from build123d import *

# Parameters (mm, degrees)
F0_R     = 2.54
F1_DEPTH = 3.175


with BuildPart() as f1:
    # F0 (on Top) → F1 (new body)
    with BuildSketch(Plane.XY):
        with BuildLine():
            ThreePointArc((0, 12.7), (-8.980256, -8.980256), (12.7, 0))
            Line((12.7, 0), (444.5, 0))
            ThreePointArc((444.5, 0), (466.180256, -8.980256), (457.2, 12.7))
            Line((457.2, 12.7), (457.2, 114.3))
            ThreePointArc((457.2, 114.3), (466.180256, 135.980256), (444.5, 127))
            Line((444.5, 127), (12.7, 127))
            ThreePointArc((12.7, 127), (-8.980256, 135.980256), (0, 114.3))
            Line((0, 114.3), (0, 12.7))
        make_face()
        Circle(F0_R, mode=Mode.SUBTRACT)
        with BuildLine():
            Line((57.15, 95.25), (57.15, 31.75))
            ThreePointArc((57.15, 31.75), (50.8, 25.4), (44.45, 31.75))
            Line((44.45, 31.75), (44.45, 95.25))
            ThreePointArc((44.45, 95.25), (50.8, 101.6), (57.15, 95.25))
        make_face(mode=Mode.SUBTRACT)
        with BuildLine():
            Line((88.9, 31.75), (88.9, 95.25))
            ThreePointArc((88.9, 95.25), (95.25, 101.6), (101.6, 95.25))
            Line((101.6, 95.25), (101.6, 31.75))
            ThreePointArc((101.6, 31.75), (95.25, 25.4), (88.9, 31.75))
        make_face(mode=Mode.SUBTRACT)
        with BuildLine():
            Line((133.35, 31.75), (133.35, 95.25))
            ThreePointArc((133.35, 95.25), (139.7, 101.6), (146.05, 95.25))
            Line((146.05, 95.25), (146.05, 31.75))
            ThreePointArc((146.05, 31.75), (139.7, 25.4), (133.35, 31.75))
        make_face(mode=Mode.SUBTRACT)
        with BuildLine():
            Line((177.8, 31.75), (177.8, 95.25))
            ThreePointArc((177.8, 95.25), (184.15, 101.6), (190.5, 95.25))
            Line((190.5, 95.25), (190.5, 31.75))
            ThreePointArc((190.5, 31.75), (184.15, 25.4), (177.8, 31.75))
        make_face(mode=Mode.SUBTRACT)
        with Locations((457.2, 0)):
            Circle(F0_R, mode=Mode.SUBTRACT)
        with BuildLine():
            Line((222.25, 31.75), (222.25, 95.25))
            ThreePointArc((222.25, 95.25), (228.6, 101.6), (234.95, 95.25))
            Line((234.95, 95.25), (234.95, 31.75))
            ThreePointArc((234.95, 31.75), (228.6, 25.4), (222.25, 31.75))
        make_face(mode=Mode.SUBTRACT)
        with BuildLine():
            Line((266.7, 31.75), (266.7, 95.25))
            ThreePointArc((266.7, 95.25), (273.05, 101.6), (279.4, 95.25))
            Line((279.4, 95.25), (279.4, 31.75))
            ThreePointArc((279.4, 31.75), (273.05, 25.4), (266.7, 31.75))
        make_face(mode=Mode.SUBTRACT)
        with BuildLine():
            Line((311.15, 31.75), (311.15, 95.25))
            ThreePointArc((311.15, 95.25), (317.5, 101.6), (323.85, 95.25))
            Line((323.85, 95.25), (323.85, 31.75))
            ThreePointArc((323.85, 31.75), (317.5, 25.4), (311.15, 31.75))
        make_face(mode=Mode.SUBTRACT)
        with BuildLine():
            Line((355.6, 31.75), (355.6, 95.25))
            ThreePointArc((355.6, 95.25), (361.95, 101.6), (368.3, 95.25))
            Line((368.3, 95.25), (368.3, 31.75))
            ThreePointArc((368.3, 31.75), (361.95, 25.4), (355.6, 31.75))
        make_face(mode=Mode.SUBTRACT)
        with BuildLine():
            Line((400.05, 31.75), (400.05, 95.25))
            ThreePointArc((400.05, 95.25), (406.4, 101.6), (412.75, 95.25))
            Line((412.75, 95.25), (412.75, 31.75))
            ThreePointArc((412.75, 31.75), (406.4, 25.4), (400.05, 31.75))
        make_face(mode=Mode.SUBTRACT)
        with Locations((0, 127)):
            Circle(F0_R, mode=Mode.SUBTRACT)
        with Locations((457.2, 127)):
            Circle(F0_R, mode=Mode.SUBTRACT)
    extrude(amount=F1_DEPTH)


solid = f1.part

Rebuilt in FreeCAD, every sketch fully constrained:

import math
import FreeCAD as App
import Part
import Sketcher

V = App.Vector
Q = App.Units.Quantity

doc = App.newDocument("Part")
body = doc.addObject("PartDesign::Body", "Body")

# Sketch on XY plane
sketch1 = body.newObject("Sketcher::SketchObject", "Sketch")
sketch1.AttachmentSupport = (doc.getObject("XY_Plane"), [""])
sketch1.MapMode = "FlatFace"
sketch1.addGeometry(Part.ArcOfCircle(Part.Circle(V(0, 0, 0), V(0, 0, 1), 12.7), math.radians(90), math.radians(360)), False)
sketch1.addGeometry(Part.LineSegment(V(12.7, 0, 0), V(444.5, 0, 0)), False)
sketch1.addGeometry(Part.ArcOfCircle(Part.Circle(V(457.2, 0, 0), V(0, 0, 1), 12.7), math.radians(-180), math.radians(90)), False)
sketch1.addGeometry(Part.LineSegment(V(457.2, 12.7, 0), V(457.2, 114.3, 0)), False)
sketch1.addGeometry(Part.ArcOfCircle(Part.Circle(V(457.2, 127, 0), V(0, 0, 1), 12.7), math.radians(-90), math.radians(180)), False)
sketch1.addGeometry(Part.LineSegment(V(444.5, 127, 0), V(12.7, 127, 0)), False)
sketch1.addGeometry(Part.ArcOfCircle(Part.Circle(V(0, 127, 0), V(0, 0, 1), 12.7), math.radians(0), math.radians(270)), False)
sketch1.addGeometry(Part.LineSegment(V(0, 114.3, 0), V(0, 12.7, 0)), False)
sketch1.addGeometry(Part.Circle(V(0, 0, 0), V(0, 0, 1), 2.54), False)
sketch1.addGeometry(Part.Circle(V(457.2, 0, 0), V(0, 0, 1), 2.54), False)
sketch1.addGeometry(Part.ArcOfCircle(Part.Circle(V(50.8, 95.25, 0), V(0, 0, 1), 6.35), math.radians(0), math.radians(180)), False)
sketch1.addGeometry(Part.LineSegment(V(57.15, 95.25, 0), V(57.15, 31.75, 0)), False)
sketch1.addGeometry(Part.ArcOfCircle(Part.Circle(V(50.8, 31.75, 0), V(0, 0, 1), 6.35), math.radians(180), math.radians(360)), False)
sketch1.addGeometry(Part.LineSegment(V(44.45, 31.75, 0), V(44.45, 95.25, 0)), False)
sketch1.addGeometry(Part.ArcOfCircle(Part.Circle(V(95.25, 31.75, 0), V(0, 0, 1), 6.35), math.radians(180), math.radians(360)), False)
sketch1.addGeometry(Part.LineSegment(V(88.9, 31.75, 0), V(88.9, 95.25, 0)), False)
sketch1.addGeometry(Part.ArcOfCircle(Part.Circle(V(95.25, 95.25, 0), V(0, 0, 1), 6.35), math.radians(0), math.radians(180)), False)
sketch1.addGeometry(Part.LineSegment(V(101.6, 95.25, 0), V(101.6, 31.75, 0)), False)
sketch1.addGeometry(Part.ArcOfCircle(Part.Circle(V(139.7, 31.75, 0), V(0, 0, 1), 6.35), math.radians(180), math.radians(360)), False)
sketch1.addGeometry(Part.LineSegment(V(133.35, 31.75, 0), V(133.35, 95.25, 0)), False)
sketch1.addGeometry(Part.ArcOfCircle(Part.Circle(V(139.7, 95.25, 0), V(0, 0, 1), 6.35), math.radians(0), math.radians(180)), False)
sketch1.addGeometry(Part.LineSegment(V(146.05, 95.25, 0), V(146.05, 31.75, 0)), False)
sketch1.addGeometry(Part.ArcOfCircle(Part.Circle(V(184.15, 31.75, 0), V(0, 0, 1), 6.35), math.radians(180), math.radians(360)), False)
sketch1.addGeometry(Part.LineSegment(V(177.8, 31.75, 0), V(177.8, 95.25, 0)), False)
sketch1.addGeometry(Part.ArcOfCircle(Part.Circle(V(184.15, 95.25, 0), V(0, 0, 1), 6.35), math.radians(0), math.radians(180)), False)
sketch1.addGeometry(Part.LineSegment(V(190.5, 95.25, 0), V(190.5, 31.75, 0)), False)
sketch1.addGeometry(Part.Circle(V(0, 127, 0), V(0, 0, 1), 2.54), False)
sketch1.addGeometry(Part.ArcOfCircle(Part.Circle(V(228.6, 31.75, 0), V(0, 0, 1), 6.35), math.radians(180), math.radians(360)), False)
sketch1.addGeometry(Part.LineSegment(V(222.25, 31.75, 0), V(222.25, 95.25, 0)), False)
sketch1.addGeometry(Part.ArcOfCircle(Part.Circle(V(228.6, 95.25, 0), V(0, 0, 1), 6.35), math.radians(0), math.radians(180)), False)
sketch1.addGeometry(Part.LineSegment(V(234.95, 95.25, 0), V(234.95, 31.75, 0)), False)
sketch1.addGeometry(Part.ArcOfCircle(Part.Circle(V(273.05, 31.75, 0), V(0, 0, 1), 6.35), math.radians(180), math.radians(360)), False)
sketch1.addGeometry(Part.LineSegment(V(266.7, 31.75, 0), V(266.7, 95.25, 0)), False)
sketch1.addGeometry(Part.ArcOfCircle(Part.Circle(V(273.05, 95.25, 0), V(0, 0, 1), 6.35), math.radians(0), math.radians(180)), False)
sketch1.addGeometry(Part.LineSegment(V(279.4, 95.25, 0), V(279.4, 31.75, 0)), False)
sketch1.addGeometry(Part.ArcOfCircle(Part.Circle(V(317.5, 31.75, 0), V(0, 0, 1), 6.35), math.radians(180), math.radians(360)), False)
sketch1.addGeometry(Part.LineSegment(V(311.15, 31.75, 0), V(311.15, 95.25, 0)), False)
sketch1.addGeometry(Part.ArcOfCircle(Part.Circle(V(317.5, 95.25, 0), V(0, 0, 1), 6.35), math.radians(0), math.radians(180)), False)
sketch1.addGeometry(Part.LineSegment(V(323.85, 95.25, 0), V(323.85, 31.75, 0)), False)
sketch1.addGeometry(Part.ArcOfCircle(Part.Circle(V(361.95, 31.75, 0), V(0, 0, 1), 6.35), math.radians(180), math.radians(360)), False)
sketch1.addGeometry(Part.LineSegment(V(355.6, 31.75, 0), V(355.6, 95.25, 0)), False)
sketch1.addGeometry(Part.ArcOfCircle(Part.Circle(V(361.95, 95.25, 0), V(0, 0, 1), 6.35), math.radians(0), math.radians(180)), False)
sketch1.addGeometry(Part.LineSegment(V(368.3, 95.25, 0), V(368.3, 31.75, 0)), False)
sketch1.addGeometry(Part.ArcOfCircle(Part.Circle(V(406.4, 31.75, 0), V(0, 0, 1), 6.35), math.radians(180), math.radians(360)), False)
sketch1.addGeometry(Part.LineSegment(V(400.05, 31.75, 0), V(400.05, 95.25, 0)), False)
sketch1.addGeometry(Part.ArcOfCircle(Part.Circle(V(406.4, 95.25, 0), V(0, 0, 1), 6.35), math.radians(0), math.radians(180)), False)
sketch1.addGeometry(Part.LineSegment(V(412.75, 95.25, 0), V(412.75, 31.75, 0)), False)
sketch1.addGeometry(Part.Circle(V(457.2, 127, 0), V(0, 0, 1), 2.54), False)
sketch1.addConstraint(Sketcher.Constraint("Coincident", 0, 2, 1, 1))
sketch1.addConstraint(Sketcher.Constraint("Coincident", 1, 2, 2, 1))
sketch1.addConstraint(Sketcher.Constraint("Coincident", 2, 2, 3, 1))
sketch1.addConstraint(Sketcher.Constraint("Coincident", 3, 2, 4, 1))
sketch1.addConstraint(Sketcher.Constraint("Coincident", 4, 2, 5, 1))
sketch1.addConstraint(Sketcher.Constraint("Coincident", 5, 2, 6, 1))
sketch1.addConstraint(Sketcher.Constraint("Coincident", 6, 2, 7, 1))
sketch1.addConstraint(Sketcher.Constraint("Coincident", 7, 2, 0, 1))
sketch1.addConstraint(Sketcher.Constraint("Tangent", 10, 1, 11, 1))
sketch1.addConstraint(Sketcher.Constraint("Tangent", 11, 2, 12, 2))
sketch1.addConstraint(Sketcher.Constraint("Tangent", 12, 1, 13, 1))
sketch1.addConstraint(Sketcher.Constraint("Tangent", 13, 2, 10, 2))
sketch1.addConstraint(Sketcher.Constraint("Tangent", 14, 1, 15, 1))
sketch1.addConstraint(Sketcher.Constraint("Tangent", 15, 2, 16, 2))
sketch1.addConstraint(Sketcher.Constraint("Tangent", 16, 1, 17, 1))
sketch1.addConstraint(Sketcher.Constraint("Tangent", 17, 2, 14, 2))
sketch1.addConstraint(Sketcher.Constraint("Tangent", 18, 1, 19, 1))
sketch1.addConstraint(Sketcher.Constraint("Tangent", 19, 2, 20, 2))
sketch1.addConstraint(Sketcher.Constraint("Tangent", 20, 1, 21, 1))
sketch1.addConstraint(Sketcher.Constraint("Tangent", 21, 2, 18, 2))
sketch1.addConstraint(Sketcher.Constraint("Tangent", 22, 1, 23, 1))
sketch1.addConstraint(Sketcher.Constraint("Tangent", 23, 2, 24, 2))
sketch1.addConstraint(Sketcher.Constraint("Tangent", 24, 1, 25, 1))
sketch1.addConstraint(Sketcher.Constraint("Tangent", 25, 2, 22, 2))
sketch1.addConstraint(Sketcher.Constraint("Tangent", 27, 1, 28, 1))
sketch1.addConstraint(Sketcher.Constraint("Tangent", 28, 2, 29, 2))
sketch1.addConstraint(Sketcher.Constraint("Tangent", 29, 1, 30, 1))
sketch1.addConstraint(Sketcher.Constraint("Tangent", 30, 2, 27, 2))
sketch1.addConstraint(Sketcher.Constraint("Tangent", 31, 1, 32, 1))
sketch1.addConstraint(Sketcher.Constraint("Tangent", 32, 2, 33, 2))
sketch1.addConstraint(Sketcher.Constraint("Tangent", 33, 1, 34, 1))
sketch1.addConstraint(Sketcher.Constraint("Tangent", 34, 2, 31, 2))
sketch1.addConstraint(Sketcher.Constraint("Tangent", 35, 1, 36, 1))
sketch1.addConstraint(Sketcher.Constraint("Tangent", 36, 2, 37, 2))
sketch1.addConstraint(Sketcher.Constraint("Tangent", 37, 1, 38, 1))
sketch1.addConstraint(Sketcher.Constraint("Tangent", 38, 2, 35, 2))
sketch1.addConstraint(Sketcher.Constraint("Tangent", 39, 1, 40, 1))
sketch1.addConstraint(Sketcher.Constraint("Tangent", 40, 2, 41, 2))
sketch1.addConstraint(Sketcher.Constraint("Tangent", 41, 1, 42, 1))
sketch1.addConstraint(Sketcher.Constraint("Tangent", 42, 2, 39, 2))
sketch1.addConstraint(Sketcher.Constraint("Tangent", 43, 1, 44, 1))
sketch1.addConstraint(Sketcher.Constraint("Tangent", 44, 2, 45, 2))
sketch1.addConstraint(Sketcher.Constraint("Tangent", 45, 1, 46, 1))
sketch1.addConstraint(Sketcher.Constraint("Tangent", 46, 2, 43, 2))
sketch1.addConstraint(Sketcher.Constraint("Horizontal", 1))
sketch1.addConstraint(Sketcher.Constraint("Vertical", 3))
sketch1.addConstraint(Sketcher.Constraint("Horizontal", 5))
sketch1.addConstraint(Sketcher.Constraint("Vertical", 7))
sketch1.addConstraint(Sketcher.Constraint("Vertical", 11))
sketch1.addConstraint(Sketcher.Constraint("Vertical", 13))
sketch1.addConstraint(Sketcher.Constraint("Vertical", 15))
sketch1.addConstraint(Sketcher.Constraint("Vertical", 17))
sketch1.addConstraint(Sketcher.Constraint("Vertical", 19))
sketch1.addConstraint(Sketcher.Constraint("Vertical", 21))
sketch1.addConstraint(Sketcher.Constraint("Vertical", 23))
sketch1.addConstraint(Sketcher.Constraint("Vertical", 25))
sketch1.addConstraint(Sketcher.Constraint("Vertical", 28))
sketch1.addConstraint(Sketcher.Constraint("Vertical", 30))
sketch1.addConstraint(Sketcher.Constraint("Vertical", 32))
sketch1.addConstraint(Sketcher.Constraint("Vertical", 34))
sketch1.addConstraint(Sketcher.Constraint("Vertical", 36))
sketch1.addConstraint(Sketcher.Constraint("Vertical", 38))
sketch1.addConstraint(Sketcher.Constraint("Vertical", 40))
sketch1.addConstraint(Sketcher.Constraint("Vertical", 42))
sketch1.addConstraint(Sketcher.Constraint("Vertical", 44))
sketch1.addConstraint(Sketcher.Constraint("Vertical", 46))
sketch1.addConstraint(Sketcher.Constraint("Coincident", 0, 3, -1, 1))
sketch1.addConstraint(Sketcher.Constraint("Coincident", 8, 3, -1, 1))
sketch1.addConstraint(Sketcher.Constraint("Coincident", 9, 3, 2, 3))
sketch1.addConstraint(Sketcher.Constraint("Coincident", 26, 3, 6, 3))
sketch1.addConstraint(Sketcher.Constraint("Coincident", 47, 3, 4, 3))
sketch1.addConstraint(Sketcher.Constraint("Equal", 0, 2))
sketch1.addConstraint(Sketcher.Constraint("Equal", 2, 4))
sketch1.addConstraint(Sketcher.Constraint("Equal", 4, 6))
sketch1.addConstraint(Sketcher.Constraint("Equal", 8, 9))
sketch1.addConstraint(Sketcher.Constraint("Equal", 12, 14))
sketch1.addConstraint(Sketcher.Constraint("Equal", 16, 18))
sketch1.addConstraint(Sketcher.Constraint("Equal", 20, 22))
sketch1.addConstraint(Sketcher.Constraint("Equal", 9, 26))
sketch1.addConstraint(Sketcher.Constraint("Equal", 24, 27))
sketch1.addConstraint(Sketcher.Constraint("Equal", 29, 31))
sketch1.addConstraint(Sketcher.Constraint("Equal", 33, 35))
sketch1.addConstraint(Sketcher.Constraint("Equal", 37, 39))
sketch1.addConstraint(Sketcher.Constraint("Equal", 41, 43))
sketch1.addConstraint(Sketcher.Constraint("Equal", 26, 47))
sketch1.addConstraint(Sketcher.Constraint("PointOnObject", 2, 3, -1))
sketch1.addConstraint(Sketcher.Constraint("PointOnObject", 6, 3, -2))
sketch1.addConstraint(Sketcher.Constraint("PointOnObject", 0, 2, -1))
sketch1.addConstraint(Sketcher.Constraint("PointOnObject", 6, 2, -2))
sketch1.addConstraint(Sketcher.Constraint("Horizontal", 4, 3, 6, 3))
sketch1.addConstraint(Sketcher.Constraint("Horizontal", 12, 3, 14, 3))
sketch1.addConstraint(Sketcher.Constraint("Horizontal", 10, 3, 16, 3))
sketch1.addConstraint(Sketcher.Constraint("Horizontal", 14, 3, 18, 3))
sketch1.addConstraint(Sketcher.Constraint("Horizontal", 16, 3, 20, 3))
sketch1.addConstraint(Sketcher.Constraint("Horizontal", 18, 3, 22, 3))
sketch1.addConstraint(Sketcher.Constraint("Horizontal", 20, 3, 24, 3))
sketch1.addConstraint(Sketcher.Constraint("Horizontal", 22, 3, 27, 3))
sketch1.addConstraint(Sketcher.Constraint("Horizontal", 24, 3, 29, 3))
sketch1.addConstraint(Sketcher.Constraint("Horizontal", 27, 3, 31, 3))
sketch1.addConstraint(Sketcher.Constraint("Horizontal", 29, 3, 33, 3))
sketch1.addConstraint(Sketcher.Constraint("Horizontal", 31, 3, 35, 3))
sketch1.addConstraint(Sketcher.Constraint("Horizontal", 33, 3, 37, 3))
sketch1.addConstraint(Sketcher.Constraint("Horizontal", 35, 3, 39, 3))
sketch1.addConstraint(Sketcher.Constraint("Horizontal", 37, 3, 41, 3))
sketch1.addConstraint(Sketcher.Constraint("Horizontal", 39, 3, 43, 3))
sketch1.addConstraint(Sketcher.Constraint("Horizontal", 41, 3, 45, 3))
sketch1.addConstraint(Sketcher.Constraint("Horizontal", 47, 3, 4, 2))
sketch1.addConstraint(Sketcher.Constraint("Vertical", 2, 3, 4, 3))
sketch1.addConstraint(Sketcher.Constraint("Vertical", 47, 3, 2, 2))
sketch1.addConstraint(Sketcher.Constraint("Diameter", 8, Q("0.2 in")))
sketch1.addConstraint(Sketcher.Constraint("Radius", 0, Q("0.5 in")))
sketch1.addConstraint(Sketcher.Constraint("DistanceX", 1, 1, 1, 2, Q("17 in")))
sketch1.addConstraint(Sketcher.Constraint("DistanceY", 3, 1, 3, 2, Q("4 in")))
sketch1.addConstraint(Sketcher.Constraint("Radius", 10, Q("0.25 in")))
sketch1.addConstraint(Sketcher.Constraint("DistanceY", 11, 2, 11, 1, Q("2.5 in")))
sketch1.addConstraint(Sketcher.Constraint("DistanceX", -1, 1, 10, 3, Q("2 in")))
sketch1.addConstraint(Sketcher.Constraint("DistanceX", -1, 1, 27, 3, Q("9 in")))
sketch1.addConstraint(Sketcher.Constraint("DistanceX", -1, 1, 43, 3, Q("16 in")))
sketch1.addConstraint(Sketcher.Constraint("DistanceX", -1, 1, 16, 1, Q("4 in")))
sketch1.addConstraint(Sketcher.Constraint("DistanceX", -1, 1, 22, 1, Q("7 in")))
sketch1.addConstraint(Sketcher.Constraint("DistanceX", -1, 1, 33, 1, Q("11 in")))
sketch1.addConstraint(Sketcher.Constraint("DistanceX", -1, 1, 39, 1, Q("14 in")))
sketch1.addConstraint(Sketcher.Constraint("DistanceX", -1, 1, 18, 3, Q("5.5 in")))
sketch1.addConstraint(Sketcher.Constraint("DistanceX", -1, 1, 35, 3, Q("12.5 in")))
sketch1.addConstraint(Sketcher.Constraint("DistanceY", -1, 1, 10, 3, Q("3.75 in")))
pad1 = body.newObject("PartDesign::Pad", "Pad")
pad1.Profile = sketch1
pad1.Length = Q("0.125 in")

doc.recompute()
